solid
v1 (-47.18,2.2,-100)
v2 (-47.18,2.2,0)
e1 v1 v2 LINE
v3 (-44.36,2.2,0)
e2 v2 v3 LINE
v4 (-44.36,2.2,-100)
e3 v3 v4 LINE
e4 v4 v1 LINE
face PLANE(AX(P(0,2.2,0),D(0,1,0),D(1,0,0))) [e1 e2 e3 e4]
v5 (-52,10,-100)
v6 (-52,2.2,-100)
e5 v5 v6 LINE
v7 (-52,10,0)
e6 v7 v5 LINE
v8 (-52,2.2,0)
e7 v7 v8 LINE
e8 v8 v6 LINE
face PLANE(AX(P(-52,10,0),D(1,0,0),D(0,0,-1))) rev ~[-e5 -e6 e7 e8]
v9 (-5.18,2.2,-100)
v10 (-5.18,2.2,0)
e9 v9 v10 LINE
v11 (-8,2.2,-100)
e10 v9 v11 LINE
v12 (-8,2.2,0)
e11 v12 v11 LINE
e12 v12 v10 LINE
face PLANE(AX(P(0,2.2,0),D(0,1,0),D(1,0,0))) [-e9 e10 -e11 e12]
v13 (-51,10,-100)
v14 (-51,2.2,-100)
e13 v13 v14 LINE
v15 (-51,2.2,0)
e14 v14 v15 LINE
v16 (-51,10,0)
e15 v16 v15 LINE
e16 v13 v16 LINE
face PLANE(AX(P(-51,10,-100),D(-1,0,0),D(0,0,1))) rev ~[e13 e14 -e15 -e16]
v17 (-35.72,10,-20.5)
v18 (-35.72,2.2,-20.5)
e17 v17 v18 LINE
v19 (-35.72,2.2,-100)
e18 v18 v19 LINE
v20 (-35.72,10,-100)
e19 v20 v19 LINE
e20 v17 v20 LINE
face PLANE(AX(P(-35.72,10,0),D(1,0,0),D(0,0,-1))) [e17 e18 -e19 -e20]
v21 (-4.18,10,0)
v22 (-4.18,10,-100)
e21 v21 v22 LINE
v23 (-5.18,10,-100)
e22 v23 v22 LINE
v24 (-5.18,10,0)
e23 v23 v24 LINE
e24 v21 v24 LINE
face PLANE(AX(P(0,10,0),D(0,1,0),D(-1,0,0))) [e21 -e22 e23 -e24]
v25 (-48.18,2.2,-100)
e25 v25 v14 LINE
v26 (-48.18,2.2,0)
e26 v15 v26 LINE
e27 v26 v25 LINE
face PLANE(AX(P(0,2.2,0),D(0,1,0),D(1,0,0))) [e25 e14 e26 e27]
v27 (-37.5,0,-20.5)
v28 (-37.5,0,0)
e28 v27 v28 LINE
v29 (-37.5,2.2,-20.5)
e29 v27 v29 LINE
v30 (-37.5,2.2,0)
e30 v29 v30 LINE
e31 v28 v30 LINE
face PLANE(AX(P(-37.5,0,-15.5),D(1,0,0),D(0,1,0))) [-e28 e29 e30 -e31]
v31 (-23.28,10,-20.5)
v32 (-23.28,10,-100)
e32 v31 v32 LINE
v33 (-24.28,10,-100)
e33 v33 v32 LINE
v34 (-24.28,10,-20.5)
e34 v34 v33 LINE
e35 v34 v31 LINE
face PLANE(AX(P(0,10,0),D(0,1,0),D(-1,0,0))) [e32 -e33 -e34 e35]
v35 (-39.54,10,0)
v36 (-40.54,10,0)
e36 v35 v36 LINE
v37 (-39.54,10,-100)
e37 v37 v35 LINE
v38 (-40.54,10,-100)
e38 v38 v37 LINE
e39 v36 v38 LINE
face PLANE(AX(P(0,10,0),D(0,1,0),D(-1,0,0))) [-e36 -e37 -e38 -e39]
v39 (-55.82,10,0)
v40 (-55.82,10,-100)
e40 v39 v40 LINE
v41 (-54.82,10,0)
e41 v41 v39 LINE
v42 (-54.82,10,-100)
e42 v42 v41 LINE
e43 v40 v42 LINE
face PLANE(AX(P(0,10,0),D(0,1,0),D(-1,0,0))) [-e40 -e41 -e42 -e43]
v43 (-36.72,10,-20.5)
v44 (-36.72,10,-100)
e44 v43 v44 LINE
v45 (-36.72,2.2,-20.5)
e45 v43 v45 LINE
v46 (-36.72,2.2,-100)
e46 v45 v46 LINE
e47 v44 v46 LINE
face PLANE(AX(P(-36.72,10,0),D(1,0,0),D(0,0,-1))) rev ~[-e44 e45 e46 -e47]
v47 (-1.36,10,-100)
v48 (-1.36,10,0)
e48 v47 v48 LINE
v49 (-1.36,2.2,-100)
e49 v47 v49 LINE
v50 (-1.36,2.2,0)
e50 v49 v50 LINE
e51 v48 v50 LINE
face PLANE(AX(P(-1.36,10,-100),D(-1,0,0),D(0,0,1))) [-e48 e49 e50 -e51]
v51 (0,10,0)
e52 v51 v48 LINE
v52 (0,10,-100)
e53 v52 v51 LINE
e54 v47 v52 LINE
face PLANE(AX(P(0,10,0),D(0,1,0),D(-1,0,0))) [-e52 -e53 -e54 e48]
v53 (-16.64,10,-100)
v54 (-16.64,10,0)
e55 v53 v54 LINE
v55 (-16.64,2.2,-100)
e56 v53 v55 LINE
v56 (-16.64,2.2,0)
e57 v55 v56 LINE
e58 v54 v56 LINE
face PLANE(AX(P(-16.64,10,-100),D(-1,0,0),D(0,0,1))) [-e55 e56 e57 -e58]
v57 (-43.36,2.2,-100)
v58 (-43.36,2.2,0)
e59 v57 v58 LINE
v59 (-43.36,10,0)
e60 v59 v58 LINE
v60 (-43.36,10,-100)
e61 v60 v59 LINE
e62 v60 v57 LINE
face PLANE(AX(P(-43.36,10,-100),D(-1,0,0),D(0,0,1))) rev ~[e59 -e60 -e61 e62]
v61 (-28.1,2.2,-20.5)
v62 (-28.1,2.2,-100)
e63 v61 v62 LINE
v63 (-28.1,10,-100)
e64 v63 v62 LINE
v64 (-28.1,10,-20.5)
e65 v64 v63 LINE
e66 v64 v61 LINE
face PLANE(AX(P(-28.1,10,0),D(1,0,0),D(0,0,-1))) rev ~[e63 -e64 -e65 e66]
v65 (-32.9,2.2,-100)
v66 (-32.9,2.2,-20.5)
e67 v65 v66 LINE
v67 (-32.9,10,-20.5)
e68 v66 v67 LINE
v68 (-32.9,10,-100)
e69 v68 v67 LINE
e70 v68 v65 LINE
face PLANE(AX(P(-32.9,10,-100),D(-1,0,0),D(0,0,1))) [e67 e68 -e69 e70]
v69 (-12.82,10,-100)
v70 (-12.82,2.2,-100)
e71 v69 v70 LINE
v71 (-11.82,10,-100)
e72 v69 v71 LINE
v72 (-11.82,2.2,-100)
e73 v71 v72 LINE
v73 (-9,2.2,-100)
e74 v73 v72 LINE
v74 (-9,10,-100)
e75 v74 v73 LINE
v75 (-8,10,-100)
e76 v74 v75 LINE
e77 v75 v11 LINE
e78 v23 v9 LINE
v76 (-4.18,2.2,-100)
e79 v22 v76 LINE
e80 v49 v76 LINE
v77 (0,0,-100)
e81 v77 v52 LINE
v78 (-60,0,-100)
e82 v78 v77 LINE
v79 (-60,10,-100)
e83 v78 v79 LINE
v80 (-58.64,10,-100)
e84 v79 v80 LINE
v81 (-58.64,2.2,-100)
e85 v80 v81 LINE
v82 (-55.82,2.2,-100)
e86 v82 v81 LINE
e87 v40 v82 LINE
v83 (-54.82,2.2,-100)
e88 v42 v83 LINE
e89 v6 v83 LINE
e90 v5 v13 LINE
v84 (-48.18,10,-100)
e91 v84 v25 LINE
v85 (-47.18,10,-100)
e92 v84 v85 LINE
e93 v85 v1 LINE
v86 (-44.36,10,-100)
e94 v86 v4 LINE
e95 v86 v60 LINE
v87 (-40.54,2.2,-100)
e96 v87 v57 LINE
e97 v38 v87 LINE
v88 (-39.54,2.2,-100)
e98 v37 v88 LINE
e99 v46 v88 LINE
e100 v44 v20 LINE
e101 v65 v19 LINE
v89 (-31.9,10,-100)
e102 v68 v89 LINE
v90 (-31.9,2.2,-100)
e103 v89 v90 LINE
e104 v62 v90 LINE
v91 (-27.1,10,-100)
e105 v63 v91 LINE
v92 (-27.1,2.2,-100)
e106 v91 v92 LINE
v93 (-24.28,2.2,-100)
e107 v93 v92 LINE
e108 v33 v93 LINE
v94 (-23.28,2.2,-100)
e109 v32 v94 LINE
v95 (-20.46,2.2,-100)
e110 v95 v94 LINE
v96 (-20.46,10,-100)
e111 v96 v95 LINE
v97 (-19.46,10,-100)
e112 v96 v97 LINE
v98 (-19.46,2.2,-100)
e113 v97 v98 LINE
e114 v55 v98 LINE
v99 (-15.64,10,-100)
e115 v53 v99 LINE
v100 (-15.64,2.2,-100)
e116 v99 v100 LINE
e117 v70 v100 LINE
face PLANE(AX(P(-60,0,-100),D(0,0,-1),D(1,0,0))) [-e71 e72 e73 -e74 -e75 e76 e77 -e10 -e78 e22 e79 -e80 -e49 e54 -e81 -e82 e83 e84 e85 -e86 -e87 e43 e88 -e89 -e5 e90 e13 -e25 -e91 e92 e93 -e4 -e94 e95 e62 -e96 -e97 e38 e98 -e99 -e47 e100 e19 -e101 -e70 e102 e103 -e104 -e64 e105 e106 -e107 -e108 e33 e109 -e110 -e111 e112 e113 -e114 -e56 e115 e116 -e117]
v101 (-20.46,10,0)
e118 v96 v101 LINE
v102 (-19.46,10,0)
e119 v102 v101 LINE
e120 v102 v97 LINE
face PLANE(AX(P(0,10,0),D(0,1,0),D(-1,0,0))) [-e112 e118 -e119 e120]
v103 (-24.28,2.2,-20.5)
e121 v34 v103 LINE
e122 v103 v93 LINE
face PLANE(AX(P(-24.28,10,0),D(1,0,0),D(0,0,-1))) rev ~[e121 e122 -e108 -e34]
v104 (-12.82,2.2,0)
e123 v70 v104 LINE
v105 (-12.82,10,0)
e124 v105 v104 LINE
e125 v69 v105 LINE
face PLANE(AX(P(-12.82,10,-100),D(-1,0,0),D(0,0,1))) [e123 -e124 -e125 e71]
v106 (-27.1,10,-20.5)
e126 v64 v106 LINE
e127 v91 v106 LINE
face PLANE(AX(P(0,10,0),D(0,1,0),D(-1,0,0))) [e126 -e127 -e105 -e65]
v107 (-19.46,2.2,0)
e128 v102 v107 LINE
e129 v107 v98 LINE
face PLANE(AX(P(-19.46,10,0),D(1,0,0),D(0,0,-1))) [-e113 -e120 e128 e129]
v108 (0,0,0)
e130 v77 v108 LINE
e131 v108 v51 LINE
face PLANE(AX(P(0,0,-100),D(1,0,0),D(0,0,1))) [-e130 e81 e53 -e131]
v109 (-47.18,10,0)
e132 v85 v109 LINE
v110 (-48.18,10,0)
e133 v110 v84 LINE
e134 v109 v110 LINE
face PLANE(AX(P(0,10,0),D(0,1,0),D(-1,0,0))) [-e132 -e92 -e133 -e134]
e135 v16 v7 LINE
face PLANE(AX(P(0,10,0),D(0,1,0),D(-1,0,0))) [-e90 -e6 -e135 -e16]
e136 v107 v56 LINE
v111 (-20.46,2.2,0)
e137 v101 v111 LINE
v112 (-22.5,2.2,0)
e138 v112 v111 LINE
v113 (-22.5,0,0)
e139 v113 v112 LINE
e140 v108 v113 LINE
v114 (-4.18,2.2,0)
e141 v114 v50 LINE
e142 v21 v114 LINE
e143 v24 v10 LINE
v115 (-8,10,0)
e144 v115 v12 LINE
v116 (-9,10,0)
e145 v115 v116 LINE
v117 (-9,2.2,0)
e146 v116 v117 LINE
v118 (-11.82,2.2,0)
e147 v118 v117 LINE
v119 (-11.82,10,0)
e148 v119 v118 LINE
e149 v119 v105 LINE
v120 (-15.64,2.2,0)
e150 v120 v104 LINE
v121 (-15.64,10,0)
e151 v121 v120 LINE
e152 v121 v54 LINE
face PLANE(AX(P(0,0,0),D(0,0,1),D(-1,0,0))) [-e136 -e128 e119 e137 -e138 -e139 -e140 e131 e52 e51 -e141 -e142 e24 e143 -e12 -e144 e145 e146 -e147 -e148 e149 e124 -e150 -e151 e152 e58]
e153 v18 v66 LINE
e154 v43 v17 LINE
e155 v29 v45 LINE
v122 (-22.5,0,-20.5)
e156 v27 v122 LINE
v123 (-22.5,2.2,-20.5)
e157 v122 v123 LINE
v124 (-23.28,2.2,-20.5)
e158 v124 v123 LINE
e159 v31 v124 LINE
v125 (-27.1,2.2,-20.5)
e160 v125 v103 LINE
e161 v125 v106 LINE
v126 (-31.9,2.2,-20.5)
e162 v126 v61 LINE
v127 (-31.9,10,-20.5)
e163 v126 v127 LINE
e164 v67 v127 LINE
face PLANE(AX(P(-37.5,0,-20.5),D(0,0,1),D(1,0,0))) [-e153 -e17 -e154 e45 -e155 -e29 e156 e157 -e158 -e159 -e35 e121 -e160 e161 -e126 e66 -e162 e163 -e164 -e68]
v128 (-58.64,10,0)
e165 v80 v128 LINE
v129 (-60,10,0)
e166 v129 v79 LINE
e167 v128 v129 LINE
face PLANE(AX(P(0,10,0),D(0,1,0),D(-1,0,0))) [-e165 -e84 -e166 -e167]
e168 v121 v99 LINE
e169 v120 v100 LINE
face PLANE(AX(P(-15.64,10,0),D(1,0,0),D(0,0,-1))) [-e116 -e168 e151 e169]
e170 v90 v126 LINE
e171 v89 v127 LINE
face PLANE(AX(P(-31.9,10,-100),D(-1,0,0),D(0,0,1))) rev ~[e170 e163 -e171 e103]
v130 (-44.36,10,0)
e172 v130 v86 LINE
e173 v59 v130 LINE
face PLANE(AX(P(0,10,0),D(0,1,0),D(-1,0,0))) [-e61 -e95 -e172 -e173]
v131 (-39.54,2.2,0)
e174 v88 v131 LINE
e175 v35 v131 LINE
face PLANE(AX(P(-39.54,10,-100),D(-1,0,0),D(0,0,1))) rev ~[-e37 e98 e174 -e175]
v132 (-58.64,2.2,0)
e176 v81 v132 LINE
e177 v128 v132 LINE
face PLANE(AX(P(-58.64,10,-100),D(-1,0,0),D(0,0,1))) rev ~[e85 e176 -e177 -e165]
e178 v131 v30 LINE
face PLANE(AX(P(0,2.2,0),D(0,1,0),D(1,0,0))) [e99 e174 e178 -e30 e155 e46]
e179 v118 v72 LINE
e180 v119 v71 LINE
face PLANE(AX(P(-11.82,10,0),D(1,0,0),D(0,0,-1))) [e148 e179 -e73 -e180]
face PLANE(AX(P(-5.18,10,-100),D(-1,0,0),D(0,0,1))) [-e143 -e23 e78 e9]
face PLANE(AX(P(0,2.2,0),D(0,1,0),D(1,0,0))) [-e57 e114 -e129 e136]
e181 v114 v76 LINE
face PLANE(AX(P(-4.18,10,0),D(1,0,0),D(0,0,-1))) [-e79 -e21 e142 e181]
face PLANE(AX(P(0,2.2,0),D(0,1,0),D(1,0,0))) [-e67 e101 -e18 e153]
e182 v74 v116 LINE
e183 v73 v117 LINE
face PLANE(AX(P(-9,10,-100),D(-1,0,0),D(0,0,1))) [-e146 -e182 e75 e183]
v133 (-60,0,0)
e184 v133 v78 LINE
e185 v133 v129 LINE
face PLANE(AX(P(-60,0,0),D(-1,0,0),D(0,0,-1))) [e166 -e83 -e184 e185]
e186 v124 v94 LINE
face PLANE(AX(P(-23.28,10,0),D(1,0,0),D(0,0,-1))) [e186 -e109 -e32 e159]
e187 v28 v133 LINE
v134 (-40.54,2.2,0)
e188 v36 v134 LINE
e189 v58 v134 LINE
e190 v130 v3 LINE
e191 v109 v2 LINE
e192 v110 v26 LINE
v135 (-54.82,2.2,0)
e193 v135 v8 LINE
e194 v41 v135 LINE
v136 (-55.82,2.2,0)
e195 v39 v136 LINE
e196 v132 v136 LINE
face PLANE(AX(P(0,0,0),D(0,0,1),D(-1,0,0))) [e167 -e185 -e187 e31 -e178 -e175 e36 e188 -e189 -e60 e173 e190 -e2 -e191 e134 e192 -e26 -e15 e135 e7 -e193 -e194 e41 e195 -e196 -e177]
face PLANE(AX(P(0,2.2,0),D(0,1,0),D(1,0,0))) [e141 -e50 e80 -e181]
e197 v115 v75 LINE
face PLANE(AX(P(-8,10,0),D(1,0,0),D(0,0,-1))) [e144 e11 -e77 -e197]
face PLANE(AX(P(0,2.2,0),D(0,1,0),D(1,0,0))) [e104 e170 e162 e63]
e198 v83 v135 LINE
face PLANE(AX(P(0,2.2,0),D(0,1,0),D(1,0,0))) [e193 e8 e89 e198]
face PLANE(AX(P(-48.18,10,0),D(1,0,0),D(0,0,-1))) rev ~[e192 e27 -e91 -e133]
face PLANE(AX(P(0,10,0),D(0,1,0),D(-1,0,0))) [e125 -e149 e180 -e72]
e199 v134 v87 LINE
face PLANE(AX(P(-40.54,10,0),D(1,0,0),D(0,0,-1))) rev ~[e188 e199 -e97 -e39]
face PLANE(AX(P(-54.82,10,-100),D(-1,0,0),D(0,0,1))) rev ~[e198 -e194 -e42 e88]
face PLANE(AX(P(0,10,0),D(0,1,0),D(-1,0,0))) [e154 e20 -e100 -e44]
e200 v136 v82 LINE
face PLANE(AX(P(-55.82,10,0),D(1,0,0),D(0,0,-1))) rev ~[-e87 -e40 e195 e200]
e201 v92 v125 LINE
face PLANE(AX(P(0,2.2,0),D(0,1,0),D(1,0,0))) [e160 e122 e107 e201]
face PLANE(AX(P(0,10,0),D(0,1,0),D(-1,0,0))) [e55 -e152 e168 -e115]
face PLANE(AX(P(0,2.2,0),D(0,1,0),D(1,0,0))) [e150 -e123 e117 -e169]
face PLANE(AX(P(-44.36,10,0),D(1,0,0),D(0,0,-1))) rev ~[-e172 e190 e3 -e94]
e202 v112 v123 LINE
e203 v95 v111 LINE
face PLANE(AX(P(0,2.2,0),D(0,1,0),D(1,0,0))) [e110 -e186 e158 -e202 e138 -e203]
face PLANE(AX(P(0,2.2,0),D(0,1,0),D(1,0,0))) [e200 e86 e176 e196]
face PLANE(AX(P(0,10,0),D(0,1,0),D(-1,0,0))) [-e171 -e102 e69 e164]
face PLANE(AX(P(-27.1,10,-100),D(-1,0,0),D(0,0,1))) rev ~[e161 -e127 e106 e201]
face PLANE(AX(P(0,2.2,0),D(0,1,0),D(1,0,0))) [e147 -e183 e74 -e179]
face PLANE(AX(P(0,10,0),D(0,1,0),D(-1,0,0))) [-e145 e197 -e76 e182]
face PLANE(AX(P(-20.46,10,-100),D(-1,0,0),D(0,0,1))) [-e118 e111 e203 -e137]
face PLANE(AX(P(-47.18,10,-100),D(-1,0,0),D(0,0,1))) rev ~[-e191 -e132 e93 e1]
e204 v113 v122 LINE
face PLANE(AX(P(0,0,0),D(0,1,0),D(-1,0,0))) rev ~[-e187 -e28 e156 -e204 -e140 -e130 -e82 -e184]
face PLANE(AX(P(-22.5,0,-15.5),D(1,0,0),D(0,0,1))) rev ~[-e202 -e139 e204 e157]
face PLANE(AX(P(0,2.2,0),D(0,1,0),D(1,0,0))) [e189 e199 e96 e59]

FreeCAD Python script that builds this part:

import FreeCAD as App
import Part
import Sketcher
Q = App.Units.Quantity

doc = App.newDocument("Part")
body = doc.addObject("PartDesign::Body", "Body")

# Sketch on XZ plane
sketch1 = doc.addObject("Sketcher::SketchObject", "Sketch")
body.addObject(sketch1)
sketch1.AttachmentSupport = (doc.XZ_Plane, [""])
sketch1.MapMode = "FlatFace"
sketch1.addGeometry(Part.LineSegment(App.Vector(-60, 0, 0), App.Vector(0, 0, 0)), False)
sketch1.addGeometry(Part.LineSegment(App.Vector(0, 0, 0), App.Vector(0, -100, 0)), False)
sketch1.addGeometry(Part.LineSegment(App.Vector(0, -100, 0), App.Vector(-60, -100, 0)), False)
sketch1.addGeometry(Part.LineSegment(App.Vector(-60, -100, 0), App.Vector(-60, 0, 0)), False)
sketch1.addConstraint(Sketcher.Constraint("Coincident", 0, 2, 1, 1))
sketch1.addConstraint(Sketcher.Constraint("Coincident", 1, 2, 2, 1))
sketch1.addConstraint(Sketcher.Constraint("Coincident", 2, 2, 3, 1))
sketch1.addConstraint(Sketcher.Constraint("Coincident", 3, 2, 0, 1))
sketch1.addConstraint(Sketcher.Constraint("Horizontal", 0))
sketch1.addConstraint(Sketcher.Constraint("Vertical", 1))
sketch1.addConstraint(Sketcher.Constraint("Horizontal", 2))
sketch1.addConstraint(Sketcher.Constraint("Vertical", 3))
sketch1.addConstraint(Sketcher.Constraint("Coincident", 0, 2, -1, 1))
sketch1.addConstraint(Sketcher.Constraint("DistanceX", 0, 1, 0, 2, Q("60 mm")))
sketch1.addConstraint(Sketcher.Constraint("DistanceY", 1, 2, 1, 1, Q("100 mm")))
pad1 = doc.addObject("PartDesign::Pad", "Pad")
body.addObject(pad1)
pad1.Profile = sketch1
pad1.Length = 10
pad1.Reversed = True

# Sketch on XZ plane
sketch2 = doc.addObject("Sketcher::SketchObject", "Sketch001")
body.addObject(sketch2)
sketch2.AttachmentSupport = (doc.XZ_Plane, [""])
sketch2.MapMode = "FlatFace"
sketch2.AttachmentOffset = App.Placement(App.Vector(0, 0, -10), App.Rotation())
sketch2.addGeometry(Part.LineSegment(App.Vector(-58.6, -100, 0), App.Vector(-58.6, 0, 0)), False)
sketch2.addGeometry(Part.LineSegment(App.Vector(-58.6, 0, 0), App.Vector(-55.8, 0, 0)), False)
sketch2.addGeometry(Part.LineSegment(App.Vector(-55.8, 0, 0), App.Vector(-55.8, -100, 0)), False)
sketch2.addGeometry(Part.LineSegment(App.Vector(-55.8, -100, 0), App.Vector(-58.6, -100, 0)), False)
sketch2.addGeometry(Part.LineSegment(App.Vector(-54.8, -100, 0), App.Vector(-54.8, 0, 0)), False)
sketch2.addGeometry(Part.LineSegment(App.Vector(-54.8, 0, 0), App.Vector(-52, 0, 0)), False)
sketch2.addGeometry(Part.LineSegment(App.Vector(-52, 0, 0), App.Vector(-52, -100, 0)), False)
sketch2.addGeometry(Part.LineSegment(App.Vector(-52, -100, 0), App.Vector(-54.8, -100, 0)), False)
sketch2.addGeometry(Part.LineSegment(App.Vector(-51, -100, 0), App.Vector(-51, 0, 0)), False)
sketch2.addGeometry(Part.LineSegment(App.Vector(-51, 0, 0), App.Vector(-48.2, 0, 0)), False)
sketch2.addGeometry(Part.LineSegment(App.Vector(-48.2, 0, 0), App.Vector(-48.2, -100, 0)), False)
sketch2.addGeometry(Part.LineSegment(App.Vector(-48.2, -100, 0), App.Vector(-51, -100, 0)), False)
sketch2.addGeometry(Part.LineSegment(App.Vector(-47.2, -100, 0), App.Vector(-47.2, 0, 0)), False)
sketch2.addGeometry(Part.LineSegment(App.Vector(-47.2, 0, 0), App.Vector(-44.4, 0, 0)), False)
sketch2.addGeometry(Part.LineSegment(App.Vector(-44.4, 0, 0), App.Vector(-44.4, -100, 0)), False)
sketch2.addGeometry(Part.LineSegment(App.Vector(-44.4, -100, 0), App.Vector(-47.2, -100, 0)), False)
sketch2.addGeometry(Part.LineSegment(App.Vector(-43.4, -100, 0), App.Vector(-43.4, 0, 0)), False)
sketch2.addGeometry(Part.LineSegment(App.Vector(-43.4, 0, 0), App.Vector(-40.5, 0, 0)), False)
sketch2.addGeometry(Part.LineSegment(App.Vector(-40.5, 0, 0), App.Vector(-40.5, -100, 0)), False)
sketch2.addGeometry(Part.LineSegment(App.Vector(-40.5, -100, 0), App.Vector(-43.4, -100, 0)), False)
sketch2.addGeometry(Part.LineSegment(App.Vector(-39.5, -100, 0), App.Vector(-39.5, 0, 0)), False)
sketch2.addGeometry(Part.LineSegment(App.Vector(-39.5, 0, 0), App.Vector(-36.7, 0, 0)), False)
sketch2.addGeometry(Part.LineSegment(App.Vector(-36.7, 0, 0), App.Vector(-36.7, -100, 0)), False)
sketch2.addGeometry(Part.LineSegment(App.Vector(-36.7, -100, 0), App.Vector(-39.5, -100, 0)), False)
sketch2.addGeometry(Part.LineSegment(App.Vector(-35.7, -100, 0), App.Vector(-35.7, 0, 0)), False)
sketch2.addGeometry(Part.LineSegment(App.Vector(-35.7, 0, 0), App.Vector(-32.9, 0, 0)), False)
sketch2.addGeometry(Part.LineSegment(App.Vector(-32.9, 0, 0), App.Vector(-32.9, -100, 0)), False)
sketch2.addGeometry(Part.LineSegment(App.Vector(-32.9, -100, 0), App.Vector(-35.7, -100, 0)), False)
sketch2.addGeometry(Part.LineSegment(App.Vector(-31.9, -100, 0), App.Vector(-31.9, 0, 0)), False)
sketch2.addGeometry(Part.LineSegment(App.Vector(-31.9, 0, 0), App.Vector(-28.1, 0, 0)), False)
sketch2.addGeometry(Part.LineSegment(App.Vector(-28.1, 0, 0), App.Vector(-28.1, -100, 0)), False)
sketch2.addGeometry(Part.LineSegment(App.Vector(-28.1, -100, 0), App.Vector(-31.9, -100, 0)), False)
sketch2.addGeometry(Part.LineSegment(App.Vector(-27.1, -100, 0), App.Vector(-27.1, 0, 0)), False)
sketch2.addGeometry(Part.LineSegment(App.Vector(-27.1, 0, 0), App.Vector(-24.3, 0, 0)), False)
sketch2.addGeometry(Part.LineSegment(App.Vector(-24.3, 0, 0), App.Vector(-24.3, -100, 0)), False)
sketch2.addGeometry(Part.LineSegment(App.Vector(-24.3, -100, 0), App.Vector(-27.1, -100, 0)), False)
sketch2.addGeometry(Part.LineSegment(App.Vector(-23.3, -100, 0), App.Vector(-23.3, 0, 0)), False)
sketch2.addGeometry(Part.LineSegment(App.Vector(-23.3, 0, 0), App.Vector(-20.5, 0, 0)), False)
sketch2.addGeometry(Part.LineSegment(App.Vector(-20.5, 0, 0), App.Vector(-20.5, -100, 0)), False)
sketch2.addGeometry(Part.LineSegment(App.Vector(-20.5, -100, 0), App.Vector(-23.3, -100, 0)), False)
sketch2.addGeometry(Part.LineSegment(App.Vector(-19.5, -100, 0), App.Vector(-19.5, 0, 0)), False)
sketch2.addGeometry(Part.LineSegment(App.Vector(-19.5, 0, 0), App.Vector(-16.6, 0, 0)), False)
sketch2.addGeometry(Part.LineSegment(App.Vector(-16.6, 0, 0), App.Vector(-16.6, -100, 0)), False)
sketch2.addGeometry(Part.LineSegment(App.Vector(-16.6, -100, 0), App.Vector(-19.5, -100, 0)), False)
sketch2.addGeometry(Part.LineSegment(App.Vector(-15.6, -100, 0), App.Vector(-15.6, 0, 0)), False)
sketch2.addGeometry(Part.LineSegment(App.Vector(-15.6, 0, 0), App.Vector(-12.8, 0, 0)), False)
sketch2.addGeometry(Part.LineSegment(App.Vector(-12.8, 0, 0), App.Vector(-12.8, -100, 0)), False)
sketch2.addGeometry(Part.LineSegment(App.Vector(-12.8, -100, 0), App.Vector(-15.6, -100, 0)), False)
sketch2.addGeometry(Part.LineSegment(App.Vector(-11.8, -100, 0), App.Vector(-11.8, 0, 0)), False)
sketch2.addGeometry(Part.LineSegment(App.Vector(-11.8, 0, 0), App.Vector(-9, 0, 0)), False)
sketch2.addGeometry(Part.LineSegment(App.Vector(-9, 0, 0), App.Vector(-9, -100, 0)), False)
sketch2.addGeometry(Part.LineSegment(App.Vector(-9, -100, 0), App.Vector(-11.8, -100, 0)), False)
sketch2.addGeometry(Part.LineSegment(App.Vector(-8, -100, 0), App.Vector(-8, 0, 0)), False)
sketch2.addGeometry(Part.LineSegment(App.Vector(-8, 0, 0), App.Vector(-5.2, 0, 0)), False)
sketch2.addGeometry(Part.LineSegment(App.Vector(-5.2, 0, 0), App.Vector(-5.2, -100, 0)), False)
sketch2.addGeometry(Part.LineSegment(App.Vector(-5.2, -100, 0), App.Vector(-8, -100, 0)), False)
sketch2.addGeometry(Part.LineSegment(App.Vector(-4.2, -100, 0), App.Vector(-4.2, 0, 0)), False)
sketch2.addGeometry(Part.LineSegment(App.Vector(-4.2, 0, 0), App.Vector(-1.4, 0, 0)), False)
sketch2.addGeometry(Part.LineSegment(App.Vector(-1.4, 0, 0), App.Vector(-1.4, -100, 0)), False)
sketch2.addGeometry(Part.LineSegment(App.Vector(-1.4, -100, 0), App.Vector(-4.2, -100, 0)), False)
sketch2.addConstraint(Sketcher.Constraint("Coincident", 0, 2, 1, 1))
sketch2.addConstraint(Sketcher.Constraint("Coincident", 1, 2, 2, 1))
sketch2.addConstraint(Sketcher.Constraint("Coincident", 2, 2, 3, 1))
sketch2.addConstraint(Sketcher.Constraint("Coincident", 3, 2, 0, 1))
sketch2.addConstraint(Sketcher.Constraint("Coincident", 4, 2, 5, 1))
sketch2.addConstraint(Sketcher.Constraint("Coincident", 5, 2, 6, 1))
sketch2.addConstraint(Sketcher.Constraint("Coincident", 6, 2, 7, 1))
sketch2.addConstraint(Sketcher.Constraint("Coincident", 7, 2, 4, 1))
sketch2.addConstraint(Sketcher.Constraint("Coincident", 8, 2, 9, 1))
sketch2.addConstraint(Sketcher.Constraint("Coincident", 9, 2, 10, 1))
sketch2.addConstraint(Sketcher.Constraint("Coincident", 10, 2, 11, 1))
sketch2.addConstraint(Sketcher.Constraint("Coincident", 11, 2, 8, 1))
sketch2.addConstraint(Sketcher.Constraint("Coincident", 12, 2, 13, 1))
sketch2.addConstraint(Sketcher.Constraint("Coincident", 13, 2, 14, 1))
sketch2.addConstraint(Sketcher.Constraint("Coincident", 14, 2, 15, 1))
sketch2.addConstraint(Sketcher.Constraint("Coincident", 15, 2, 12, 1))
sketch2.addConstraint(Sketcher.Constraint("Coincident", 16, 2, 17, 1))
sketch2.addConstraint(Sketcher.Constraint("Coincident", 17, 2, 18, 1))
sketch2.addConstraint(Sketcher.Constraint("Coincident", 18, 2, 19, 1))
sketch2.addConstraint(Sketcher.Constraint("Coincident", 19, 2, 16, 1))
sketch2.addConstraint(Sketcher.Constraint("Coincident", 20, 2, 21, 1))
sketch2.addConstraint(Sketcher.Constraint("Coincident", 21, 2, 22, 1))
sketch2.addConstraint(Sketcher.Constraint("Coincident", 22, 2, 23, 1))
sketch2.addConstraint(Sketcher.Constraint("Coincident", 23, 2, 20, 1))
sketch2.addConstraint(Sketcher.Constraint("Coincident", 24, 2, 25, 1))
sketch2.addConstraint(Sketcher.Constraint("Coincident", 25, 2, 26, 1))
sketch2.addConstraint(Sketcher.Constraint("Coincident", 26, 2, 27, 1))
sketch2.addConstraint(Sketcher.Constraint("Coincident", 27, 2, 24, 1))
sketch2.addConstraint(Sketcher.Constraint("Coincident", 28, 2, 29, 1))
sketch2.addConstraint(Sketcher.Constraint("Coincident", 29, 2, 30, 1))
sketch2.addConstraint(Sketcher.Constraint("Coincident", 30, 2, 31, 1))
sketch2.addConstraint(Sketcher.Constraint("Coincident", 31, 2, 28, 1))
sketch2.addConstraint(Sketcher.Constraint("Coincident", 32, 2, 33, 1))
sketch2.addConstraint(Sketcher.Constraint("Coincident", 33, 2, 34, 1))
sketch2.addConstraint(Sketcher.Constraint("Coincident", 34, 2, 35, 1))
sketch2.addConstraint(Sketcher.Constraint("Coincident", 35, 2, 32, 1))
sketch2.addConstraint(Sketcher.Constraint("Coincident", 36, 2, 37, 1))
sketch2.addConstraint(Sketcher.Constraint("Coincident", 37, 2, 38, 1))
sketch2.addConstraint(Sketcher.Constraint("Coincident", 38, 2, 39, 1))
sketch2.addConstraint(Sketcher.Constraint("Coincident", 39, 2, 36, 1))
sketch2.addConstraint(Sketcher.Constraint("Coincident", 40, 2, 41, 1))
sketch2.addConstraint(Sketcher.Constraint("Coincident", 41, 2, 42, 1))
sketch2.addConstraint(Sketcher.Constraint("Coincident", 42, 2, 43, 1))
sketch2.addConstraint(Sketcher.Constraint("Coincident", 43, 2, 40, 1))
sketch2.addConstraint(Sketcher.Constraint("Coincident", 44, 2, 45, 1))
sketch2.addConstraint(Sketcher.Constraint("Coincident", 45, 2, 46, 1))
sketch2.addConstraint(Sketcher.Constraint("Coincident", 46, 2, 47, 1))
sketch2.addConstraint(Sketcher.Constraint("Coincident", 47, 2, 44, 1))
sketch2.addConstraint(Sketcher.Constraint("Coincident", 48, 2, 49, 1))
sketch2.addConstraint(Sketcher.Constraint("Coincident", 49, 2, 50, 1))
sketch2.addConstraint(Sketcher.Constraint("Coincident", 50, 2, 51, 1))
sketch2.addConstraint(Sketcher.Constraint("Coincident", 51, 2, 48, 1))
sketch2.addConstraint(Sketcher.Constraint("Coincident", 52, 2, 53, 1))
sketch2.addConstraint(Sketcher.Constraint("Coincident", 53, 2, 54, 1))
sketch2.addConstraint(Sketcher.Constraint("Coincident", 54, 2, 55, 1))
sketch2.addConstraint(Sketcher.Constraint("Coincident", 55, 2, 52, 1))
sketch2.addConstraint(Sketcher.Constraint("Coincident", 56, 2, 57, 1))
sketch2.addConstraint(Sketcher.Constraint("Coincident", 57, 2, 58, 1))
sketch2.addConstraint(Sketcher.Constraint("Coincident", 58, 2, 59, 1))
sketch2.addConstraint(Sketcher.Constraint("Coincident", 59, 2, 56, 1))
sketch2.addConstraint(Sketcher.Constraint("Vertical", 0))
sketch2.addConstraint(Sketcher.Constraint("Horizontal", 1))
sketch2.addConstraint(Sketcher.Constraint("Vertical", 2))
sketch2.addConstraint(Sketcher.Constraint("Horizontal", 3))
sketch2.addConstraint(Sketcher.Constraint("Vertical", 4))
sketch2.addConstraint(Sketcher.Constraint("Horizontal", 5))
sketch2.addConstraint(Sketcher.Constraint("Vertical", 6))
sketch2.addConstraint(Sketcher.Constraint("Horizontal", 7))
sketch2.addConstraint(Sketcher.Constraint("Vertical", 8))
sketch2.addConstraint(Sketcher.Constraint("Horizontal", 9))
sketch2.addConstraint(Sketcher.Constraint("Vertical", 10))
sketch2.addConstraint(Sketcher.Constraint("Horizontal", 11))
sketch2.addConstraint(Sketcher.Constraint("Vertical", 12))
sketch2.addConstraint(Sketcher.Constraint("Horizontal", 13))
sketch2.addConstraint(Sketcher.Constraint("Vertical", 14))
sketch2.addConstraint(Sketcher.Constraint("Horizontal", 15))
sketch2.addConstraint(Sketcher.Constraint("Vertical", 16))
sketch2.addConstraint(Sketcher.Constraint("Horizontal", 17))
sketch2.addConstraint(Sketcher.Constraint("Vertical", 18))
sketch2.addConstraint(Sketcher.Constraint("Horizontal", 19))
sketch2.addConstraint(Sketcher.Constraint("Vertical", 20))
sketch2.addConstraint(Sketcher.Constraint("Horizontal", 21))
sketch2.addConstraint(Sketcher.Constraint("Vertical", 22))
sketch2.addConstraint(Sketcher.Constraint("Horizontal", 23))
sketch2.addConstraint(Sketcher.Constraint("Vertical", 24))
sketch2.addConstraint(Sketcher.Constraint("Horizontal", 25))
sketch2.addConstraint(Sketcher.Constraint("Vertical", 26))
sketch2.addConstraint(Sketcher.Constraint("Horizontal", 27))
sketch2.addConstraint(Sketcher.Constraint("Vertical", 28))
sketch2.addConstraint(Sketcher.Constraint("Horizontal", 29))
sketch2.addConstraint(Sketcher.Constraint("Vertical", 30))
sketch2.addConstraint(Sketcher.Constraint("Horizontal", 31))
sketch2.addConstraint(Sketcher.Constraint("Vertical", 32))
sketch2.addConstraint(Sketcher.Constraint("Horizontal", 33))
sketch2.addConstraint(Sketcher.Constraint("Vertical", 34))
sketch2.addConstraint(Sketcher.Constraint("Horizontal", 35))
sketch2.addConstraint(Sketcher.Constraint("Vertical", 36))
sketch2.addConstraint(Sketcher.Constraint("Horizontal", 37))
sketch2.addConstraint(Sketcher.Constraint("Vertical", 38))
sketch2.addConstraint(Sketcher.Constraint("Horizontal", 39))
sketch2.addConstraint(Sketcher.Constraint("Vertical", 40))
sketch2.addConstraint(Sketcher.Constraint("Horizontal", 41))
sketch2.addConstraint(Sketcher.Constraint("Vertical", 42))
sketch2.addConstraint(Sketcher.Constraint("Horizontal", 43))
sketch2.addConstraint(Sketcher.Constraint("Vertical", 44))
sketch2.addConstraint(Sketcher.Constraint("Horizontal", 45))
sketch2.addConstraint(Sketcher.Constraint("Vertical", 46))
sketch2.addConstraint(Sketcher.Constraint("Horizontal", 47))
sketch2.addConstraint(Sketcher.Constraint("Vertical", 48))
sketch2.addConstraint(Sketcher.Constraint("Horizontal", 49))
sketch2.addConstraint(Sketcher.Constraint("Vertical", 50))
sketch2.addConstraint(Sketcher.Constraint("Horizontal", 51))
sketch2.addConstraint(Sketcher.Constraint("Vertical", 52))
sketch2.addConstraint(Sketcher.Constraint("Horizontal", 53))
sketch2.addConstraint(Sketcher.Constraint("Vertical", 54))
sketch2.addConstraint(Sketcher.Constraint("Horizontal", 55))
sketch2.addConstraint(Sketcher.Constraint("Vertical", 56))
sketch2.addConstraint(Sketcher.Constraint("Horizontal", 57))
sketch2.addConstraint(Sketcher.Constraint("Vertical", 58))
sketch2.addConstraint(Sketcher.Constraint("Horizontal", 59))
sketch2.addConstraint(Sketcher.Constraint("PointOnObject", 0, 2, -1))
sketch2.addConstraint(Sketcher.Constraint("PointOnObject", 4, 2, -1))
sketch2.addConstraint(Sketcher.Constraint("PointOnObject", 8, 2, -1))
sketch2.addConstraint(Sketcher.Constraint("PointOnObject", 12, 2, -1))
sketch2.addConstraint(Sketcher.Constraint("PointOnObject", 16, 2, -1))
sketch2.addConstraint(Sketcher.Constraint("PointOnObject", 20, 2, -1))
sketch2.addConstraint(Sketcher.Constraint("PointOnObject", 24, 2, -1))
sketch2.addConstraint(Sketcher.Constraint("PointOnObject", 28, 2, -1))
sketch2.addConstraint(Sketcher.Constraint("PointOnObject", 32, 2, -1))
sketch2.addConstraint(Sketcher.Constraint("PointOnObject", 36, 2, -1))
sketch2.addConstraint(Sketcher.Constraint("PointOnObject", 40, 2, -1))
sketch2.addConstraint(Sketcher.Constraint("PointOnObject", 44, 2, -1))
sketch2.addConstraint(Sketcher.Constraint("PointOnObject", 48, 2, -1))
sketch2.addConstraint(Sketcher.Constraint("PointOnObject", 52, 2, -1))
sketch2.addConstraint(Sketcher.Constraint("PointOnObject", 56, 2, -1))
sketch2.addConstraint(Sketcher.Constraint("Horizontal", 3, 2, 6, 2))
sketch2.addConstraint(Sketcher.Constraint("Horizontal", 7, 2, 10, 2))
sketch2.addConstraint(Sketcher.Constraint("Horizontal", 11, 2, 14, 2))
sketch2.addConstraint(Sketcher.Constraint("Horizontal", 15, 2, 18, 2))
sketch2.addConstraint(Sketcher.Constraint("Horizontal", 19, 2, 22, 2))
sketch2.addConstraint(Sketcher.Constraint("Horizontal", 23, 2, 26, 2))
sketch2.addConstraint(Sketcher.Constraint("Horizontal", 27, 2, 30, 2))
sketch2.addConstraint(Sketcher.Constraint("Horizontal", 31, 2, 34, 2))
sketch2.addConstraint(Sketcher.Constraint("Horizontal", 35, 2, 38, 2))
sketch2.addConstraint(Sketcher.Constraint("Horizontal", 39, 2, 42, 2))
sketch2.addConstraint(Sketcher.Constraint("Horizontal", 43, 2, 46, 2))
sketch2.addConstraint(Sketcher.Constraint("Horizontal", 47, 2, 50, 2))
sketch2.addConstraint(Sketcher.Constraint("Horizontal", 51, 2, 54, 2))
sketch2.addConstraint(Sketcher.Constraint("Horizontal", 55, 2, 58, 2))
sketch2.addConstraint(Sketcher.Constraint("Equal", 3, 5))
sketch2.addConstraint(Sketcher.Constraint("Equal", 7, 9))
sketch2.addConstraint(Sketcher.Constraint("Equal", 11, 13))
sketch2.addConstraint(Sketcher.Constraint("Equal", 15, 17))
sketch2.addConstraint(Sketcher.Constraint("Equal", 19, 21))
sketch2.addConstraint(Sketcher.Constraint("Equal", 23, 25))
sketch2.addConstraint(Sketcher.Constraint("Equal", 27, 33))
sketch2.addConstraint(Sketcher.Constraint("Equal", 35, 37))
sketch2.addConstraint(Sketcher.Constraint("Equal", 39, 41))
sketch2.addConstraint(Sketcher.Constraint("Equal", 43, 45))
sketch2.addConstraint(Sketcher.Constraint("Equal", 47, 49))
sketch2.addConstraint(Sketcher.Constraint("Equal", 51, 53))
sketch2.addConstraint(Sketcher.Constraint("Equal", 55, 57))
sketch2.addConstraint(Sketcher.Constraint("DistanceY", 0, 1, 0, 2, Q("100 mm")))
sketch2.addConstraint(Sketcher.Constraint("DistanceX", 29, 1, 29, 2, Q("3.8 mm")))
sketch2.addConstraint(Sketcher.Constraint("DistanceX", 1, 2, 4, 2, Q("1 mm")))
sketch2.addConstraint(Sketcher.Constraint("DistanceX", 5, 2, 8, 2, Q("1 mm")))
sketch2.addConstraint(Sketcher.Constraint("DistanceX", 9, 2, 12, 2, Q("1 mm")))
sketch2.addConstraint(Sketcher.Constraint("DistanceX", 13, 2, 16, 2, Q("1 mm")))
sketch2.addConstraint(Sketcher.Constraint("DistanceX", 17, 2, 20, 2, Q("1 mm")))
sketch2.addConstraint(Sketcher.Constraint("DistanceX", 21, 2, 24, 2, Q("1 mm")))
sketch2.addConstraint(Sketcher.Constraint("DistanceX", 25, 2, 28, 2, Q("1 mm")))
sketch2.addConstraint(Sketcher.Constraint("DistanceX", 29, 2, 32, 2, Q("1 mm")))
sketch2.addConstraint(Sketcher.Constraint("DistanceX", 33, 2, 36, 2, Q("1 mm")))
sketch2.addConstraint(Sketcher.Constraint("DistanceX", 37, 2, 40, 2, Q("1 mm")))
sketch2.addConstraint(Sketcher.Constraint("DistanceX", 41, 2, 44, 2, Q("1 mm")))
sketch2.addConstraint(Sketcher.Constraint("DistanceX", 45, 2, 48, 2, Q("1 mm")))
sketch2.addConstraint(Sketcher.Constraint("DistanceX", 49, 2, 52, 2, Q("1 mm")))
sketch2.addConstraint(Sketcher.Constraint("DistanceX", 53, 2, 56, 2, Q("1 mm")))
sketch2.addConstraint(Sketcher.Constraint("DistanceX", 1, 1, 1, 2, Q("2.82 mm")))
sketch2.addConstraint(Sketcher.Constraint("DistanceX", 57, 2, -1, 1, Q("1.36 mm")))
pocket1 = doc.addObject("PartDesign::Pocket", "Pocket")
body.addObject(pocket1)
pocket1.Profile = sketch2
pocket1.Length = 7.8
pocket1.Reversed = True

# Sketch on XZ plane
sketch3 = doc.addObject("Sketcher::SketchObject", "Sketch002")
body.addObject(sketch3)
sketch3.AttachmentSupport = (doc.XZ_Plane, [""])
sketch3.MapMode = "FlatFace"
sketch3.addGeometry(Part.LineSegment(App.Vector(-22, -16, 0), App.Vector(-22, 0, 0)), False)
sketch3.addGeometry(Part.LineSegment(App.Vector(-22, 0, 0), App.Vector(-38, 0, 0)), False)
sketch3.addGeometry(Part.LineSegment(App.Vector(-38, 0, 0), App.Vector(-38, -16, 0)), False)
sketch3.addGeometry(Part.LineSegment(App.Vector(-38, -16, 0), App.Vector(-22, -16, 0)), False)
sketch3.addConstraint(Sketcher.Constraint("Coincident", 0, 2, 1, 1))
sketch3.addConstraint(Sketcher.Constraint("Coincident", 1, 2, 2, 1))
sketch3.addConstraint(Sketcher.Constraint("Coincident", 2, 2, 3, 1))
sketch3.addConstraint(Sketcher.Constraint("Coincident", 3, 2, 0, 1))
sketch3.addConstraint(Sketcher.Constraint("Vertical", 0))
sketch3.addConstraint(Sketcher.Constraint("Horizontal", 1))
sketch3.addConstraint(Sketcher.Constraint("Vertical", 2))
sketch3.addConstraint(Sketcher.Constraint("Horizontal", 3))
sketch3.addConstraint(Sketcher.Constraint("PointOnObject", 0, 2, -1))
sketch3.addConstraint(Sketcher.Constraint("DistanceX", 1, 2, 1, 1, Q("15 mm")))
sketch3.addConstraint(Sketcher.Constraint("DistanceY", 0, 1, 0, 2, Q("15.5 mm")))
sketch3.addConstraint(Sketcher.Constraint("DistanceX", 0, 2, -1, 1, Q("22.5 mm")))
pocket2 = doc.addObject("PartDesign::Pocket", "Pocket001")
body.addObject(pocket2)
pocket2.Profile = sketch3
pocket2.Length = 31.5

# Sketch on XY plane
sketch4 = doc.addObject("Sketcher::SketchObject", "Sketch003")
body.addObject(sketch4)
sketch4.AttachmentSupport = (doc.XY_Plane, [""])
sketch4.MapMode = "FlatFace"
sketch4.AttachmentOffset = App.Placement(App.Vector(0, 0, -15.5), App.Rotation())
sketch4.addGeometry(Part.LineSegment(App.Vector(-38, 11, 0), App.Vector(-38, -4, 0)), False)
sketch4.addGeometry(Part.LineSegment(App.Vector(-38, -4, 0), App.Vector(-22, -4, 0)), False)
sketch4.addGeometry(Part.LineSegment(App.Vector(-22, -4, 0), App.Vector(-22, 11, 0)), False)
sketch4.addGeometry(Part.LineSegment(App.Vector(-22, 11, 0), App.Vector(-38, 11, 0)), False)
sketch4.addConstraint(Sketcher.Constraint("Coincident", 0, 2, 1, 1))
sketch4.addConstraint(Sketcher.Constraint("Coincident", 1, 2, 2, 1))
sketch4.addConstraint(Sketcher.Constraint("Coincident", 2, 2, 3, 1))
sketch4.addConstraint(Sketcher.Constraint("Coincident", 3, 2, 0, 1))
sketch4.addConstraint(Sketcher.Constraint("Vertical", 0))
sketch4.addConstraint(Sketcher.Constraint("Horizontal", 1))
sketch4.addConstraint(Sketcher.Constraint("Vertical", 2))
sketch4.addConstraint(Sketcher.Constraint("Horizontal", 3))
sketch4.addConstraint(Sketcher.Constraint("DistanceX", 1, 1, 1, 2, Q("15 mm")))
sketch4.addConstraint(Sketcher.Constraint("DistanceX", 0, 2, -1, 1, Q("37.5 mm")))
sketch4.addConstraint(Sketcher.Constraint("DistanceY", 0, 2, 0, 1, Q("14.849 mm")))
sketch4.addConstraint(Sketcher.Constraint("DistanceY", 0, 2, -1, 1, Q("3.575 mm")))
pocket3 = doc.addObject("PartDesign::Pocket", "Pocket002")
body.addObject(pocket3)
pocket3.Profile = sketch4
pocket3.Length = 5

doc.recompute()
